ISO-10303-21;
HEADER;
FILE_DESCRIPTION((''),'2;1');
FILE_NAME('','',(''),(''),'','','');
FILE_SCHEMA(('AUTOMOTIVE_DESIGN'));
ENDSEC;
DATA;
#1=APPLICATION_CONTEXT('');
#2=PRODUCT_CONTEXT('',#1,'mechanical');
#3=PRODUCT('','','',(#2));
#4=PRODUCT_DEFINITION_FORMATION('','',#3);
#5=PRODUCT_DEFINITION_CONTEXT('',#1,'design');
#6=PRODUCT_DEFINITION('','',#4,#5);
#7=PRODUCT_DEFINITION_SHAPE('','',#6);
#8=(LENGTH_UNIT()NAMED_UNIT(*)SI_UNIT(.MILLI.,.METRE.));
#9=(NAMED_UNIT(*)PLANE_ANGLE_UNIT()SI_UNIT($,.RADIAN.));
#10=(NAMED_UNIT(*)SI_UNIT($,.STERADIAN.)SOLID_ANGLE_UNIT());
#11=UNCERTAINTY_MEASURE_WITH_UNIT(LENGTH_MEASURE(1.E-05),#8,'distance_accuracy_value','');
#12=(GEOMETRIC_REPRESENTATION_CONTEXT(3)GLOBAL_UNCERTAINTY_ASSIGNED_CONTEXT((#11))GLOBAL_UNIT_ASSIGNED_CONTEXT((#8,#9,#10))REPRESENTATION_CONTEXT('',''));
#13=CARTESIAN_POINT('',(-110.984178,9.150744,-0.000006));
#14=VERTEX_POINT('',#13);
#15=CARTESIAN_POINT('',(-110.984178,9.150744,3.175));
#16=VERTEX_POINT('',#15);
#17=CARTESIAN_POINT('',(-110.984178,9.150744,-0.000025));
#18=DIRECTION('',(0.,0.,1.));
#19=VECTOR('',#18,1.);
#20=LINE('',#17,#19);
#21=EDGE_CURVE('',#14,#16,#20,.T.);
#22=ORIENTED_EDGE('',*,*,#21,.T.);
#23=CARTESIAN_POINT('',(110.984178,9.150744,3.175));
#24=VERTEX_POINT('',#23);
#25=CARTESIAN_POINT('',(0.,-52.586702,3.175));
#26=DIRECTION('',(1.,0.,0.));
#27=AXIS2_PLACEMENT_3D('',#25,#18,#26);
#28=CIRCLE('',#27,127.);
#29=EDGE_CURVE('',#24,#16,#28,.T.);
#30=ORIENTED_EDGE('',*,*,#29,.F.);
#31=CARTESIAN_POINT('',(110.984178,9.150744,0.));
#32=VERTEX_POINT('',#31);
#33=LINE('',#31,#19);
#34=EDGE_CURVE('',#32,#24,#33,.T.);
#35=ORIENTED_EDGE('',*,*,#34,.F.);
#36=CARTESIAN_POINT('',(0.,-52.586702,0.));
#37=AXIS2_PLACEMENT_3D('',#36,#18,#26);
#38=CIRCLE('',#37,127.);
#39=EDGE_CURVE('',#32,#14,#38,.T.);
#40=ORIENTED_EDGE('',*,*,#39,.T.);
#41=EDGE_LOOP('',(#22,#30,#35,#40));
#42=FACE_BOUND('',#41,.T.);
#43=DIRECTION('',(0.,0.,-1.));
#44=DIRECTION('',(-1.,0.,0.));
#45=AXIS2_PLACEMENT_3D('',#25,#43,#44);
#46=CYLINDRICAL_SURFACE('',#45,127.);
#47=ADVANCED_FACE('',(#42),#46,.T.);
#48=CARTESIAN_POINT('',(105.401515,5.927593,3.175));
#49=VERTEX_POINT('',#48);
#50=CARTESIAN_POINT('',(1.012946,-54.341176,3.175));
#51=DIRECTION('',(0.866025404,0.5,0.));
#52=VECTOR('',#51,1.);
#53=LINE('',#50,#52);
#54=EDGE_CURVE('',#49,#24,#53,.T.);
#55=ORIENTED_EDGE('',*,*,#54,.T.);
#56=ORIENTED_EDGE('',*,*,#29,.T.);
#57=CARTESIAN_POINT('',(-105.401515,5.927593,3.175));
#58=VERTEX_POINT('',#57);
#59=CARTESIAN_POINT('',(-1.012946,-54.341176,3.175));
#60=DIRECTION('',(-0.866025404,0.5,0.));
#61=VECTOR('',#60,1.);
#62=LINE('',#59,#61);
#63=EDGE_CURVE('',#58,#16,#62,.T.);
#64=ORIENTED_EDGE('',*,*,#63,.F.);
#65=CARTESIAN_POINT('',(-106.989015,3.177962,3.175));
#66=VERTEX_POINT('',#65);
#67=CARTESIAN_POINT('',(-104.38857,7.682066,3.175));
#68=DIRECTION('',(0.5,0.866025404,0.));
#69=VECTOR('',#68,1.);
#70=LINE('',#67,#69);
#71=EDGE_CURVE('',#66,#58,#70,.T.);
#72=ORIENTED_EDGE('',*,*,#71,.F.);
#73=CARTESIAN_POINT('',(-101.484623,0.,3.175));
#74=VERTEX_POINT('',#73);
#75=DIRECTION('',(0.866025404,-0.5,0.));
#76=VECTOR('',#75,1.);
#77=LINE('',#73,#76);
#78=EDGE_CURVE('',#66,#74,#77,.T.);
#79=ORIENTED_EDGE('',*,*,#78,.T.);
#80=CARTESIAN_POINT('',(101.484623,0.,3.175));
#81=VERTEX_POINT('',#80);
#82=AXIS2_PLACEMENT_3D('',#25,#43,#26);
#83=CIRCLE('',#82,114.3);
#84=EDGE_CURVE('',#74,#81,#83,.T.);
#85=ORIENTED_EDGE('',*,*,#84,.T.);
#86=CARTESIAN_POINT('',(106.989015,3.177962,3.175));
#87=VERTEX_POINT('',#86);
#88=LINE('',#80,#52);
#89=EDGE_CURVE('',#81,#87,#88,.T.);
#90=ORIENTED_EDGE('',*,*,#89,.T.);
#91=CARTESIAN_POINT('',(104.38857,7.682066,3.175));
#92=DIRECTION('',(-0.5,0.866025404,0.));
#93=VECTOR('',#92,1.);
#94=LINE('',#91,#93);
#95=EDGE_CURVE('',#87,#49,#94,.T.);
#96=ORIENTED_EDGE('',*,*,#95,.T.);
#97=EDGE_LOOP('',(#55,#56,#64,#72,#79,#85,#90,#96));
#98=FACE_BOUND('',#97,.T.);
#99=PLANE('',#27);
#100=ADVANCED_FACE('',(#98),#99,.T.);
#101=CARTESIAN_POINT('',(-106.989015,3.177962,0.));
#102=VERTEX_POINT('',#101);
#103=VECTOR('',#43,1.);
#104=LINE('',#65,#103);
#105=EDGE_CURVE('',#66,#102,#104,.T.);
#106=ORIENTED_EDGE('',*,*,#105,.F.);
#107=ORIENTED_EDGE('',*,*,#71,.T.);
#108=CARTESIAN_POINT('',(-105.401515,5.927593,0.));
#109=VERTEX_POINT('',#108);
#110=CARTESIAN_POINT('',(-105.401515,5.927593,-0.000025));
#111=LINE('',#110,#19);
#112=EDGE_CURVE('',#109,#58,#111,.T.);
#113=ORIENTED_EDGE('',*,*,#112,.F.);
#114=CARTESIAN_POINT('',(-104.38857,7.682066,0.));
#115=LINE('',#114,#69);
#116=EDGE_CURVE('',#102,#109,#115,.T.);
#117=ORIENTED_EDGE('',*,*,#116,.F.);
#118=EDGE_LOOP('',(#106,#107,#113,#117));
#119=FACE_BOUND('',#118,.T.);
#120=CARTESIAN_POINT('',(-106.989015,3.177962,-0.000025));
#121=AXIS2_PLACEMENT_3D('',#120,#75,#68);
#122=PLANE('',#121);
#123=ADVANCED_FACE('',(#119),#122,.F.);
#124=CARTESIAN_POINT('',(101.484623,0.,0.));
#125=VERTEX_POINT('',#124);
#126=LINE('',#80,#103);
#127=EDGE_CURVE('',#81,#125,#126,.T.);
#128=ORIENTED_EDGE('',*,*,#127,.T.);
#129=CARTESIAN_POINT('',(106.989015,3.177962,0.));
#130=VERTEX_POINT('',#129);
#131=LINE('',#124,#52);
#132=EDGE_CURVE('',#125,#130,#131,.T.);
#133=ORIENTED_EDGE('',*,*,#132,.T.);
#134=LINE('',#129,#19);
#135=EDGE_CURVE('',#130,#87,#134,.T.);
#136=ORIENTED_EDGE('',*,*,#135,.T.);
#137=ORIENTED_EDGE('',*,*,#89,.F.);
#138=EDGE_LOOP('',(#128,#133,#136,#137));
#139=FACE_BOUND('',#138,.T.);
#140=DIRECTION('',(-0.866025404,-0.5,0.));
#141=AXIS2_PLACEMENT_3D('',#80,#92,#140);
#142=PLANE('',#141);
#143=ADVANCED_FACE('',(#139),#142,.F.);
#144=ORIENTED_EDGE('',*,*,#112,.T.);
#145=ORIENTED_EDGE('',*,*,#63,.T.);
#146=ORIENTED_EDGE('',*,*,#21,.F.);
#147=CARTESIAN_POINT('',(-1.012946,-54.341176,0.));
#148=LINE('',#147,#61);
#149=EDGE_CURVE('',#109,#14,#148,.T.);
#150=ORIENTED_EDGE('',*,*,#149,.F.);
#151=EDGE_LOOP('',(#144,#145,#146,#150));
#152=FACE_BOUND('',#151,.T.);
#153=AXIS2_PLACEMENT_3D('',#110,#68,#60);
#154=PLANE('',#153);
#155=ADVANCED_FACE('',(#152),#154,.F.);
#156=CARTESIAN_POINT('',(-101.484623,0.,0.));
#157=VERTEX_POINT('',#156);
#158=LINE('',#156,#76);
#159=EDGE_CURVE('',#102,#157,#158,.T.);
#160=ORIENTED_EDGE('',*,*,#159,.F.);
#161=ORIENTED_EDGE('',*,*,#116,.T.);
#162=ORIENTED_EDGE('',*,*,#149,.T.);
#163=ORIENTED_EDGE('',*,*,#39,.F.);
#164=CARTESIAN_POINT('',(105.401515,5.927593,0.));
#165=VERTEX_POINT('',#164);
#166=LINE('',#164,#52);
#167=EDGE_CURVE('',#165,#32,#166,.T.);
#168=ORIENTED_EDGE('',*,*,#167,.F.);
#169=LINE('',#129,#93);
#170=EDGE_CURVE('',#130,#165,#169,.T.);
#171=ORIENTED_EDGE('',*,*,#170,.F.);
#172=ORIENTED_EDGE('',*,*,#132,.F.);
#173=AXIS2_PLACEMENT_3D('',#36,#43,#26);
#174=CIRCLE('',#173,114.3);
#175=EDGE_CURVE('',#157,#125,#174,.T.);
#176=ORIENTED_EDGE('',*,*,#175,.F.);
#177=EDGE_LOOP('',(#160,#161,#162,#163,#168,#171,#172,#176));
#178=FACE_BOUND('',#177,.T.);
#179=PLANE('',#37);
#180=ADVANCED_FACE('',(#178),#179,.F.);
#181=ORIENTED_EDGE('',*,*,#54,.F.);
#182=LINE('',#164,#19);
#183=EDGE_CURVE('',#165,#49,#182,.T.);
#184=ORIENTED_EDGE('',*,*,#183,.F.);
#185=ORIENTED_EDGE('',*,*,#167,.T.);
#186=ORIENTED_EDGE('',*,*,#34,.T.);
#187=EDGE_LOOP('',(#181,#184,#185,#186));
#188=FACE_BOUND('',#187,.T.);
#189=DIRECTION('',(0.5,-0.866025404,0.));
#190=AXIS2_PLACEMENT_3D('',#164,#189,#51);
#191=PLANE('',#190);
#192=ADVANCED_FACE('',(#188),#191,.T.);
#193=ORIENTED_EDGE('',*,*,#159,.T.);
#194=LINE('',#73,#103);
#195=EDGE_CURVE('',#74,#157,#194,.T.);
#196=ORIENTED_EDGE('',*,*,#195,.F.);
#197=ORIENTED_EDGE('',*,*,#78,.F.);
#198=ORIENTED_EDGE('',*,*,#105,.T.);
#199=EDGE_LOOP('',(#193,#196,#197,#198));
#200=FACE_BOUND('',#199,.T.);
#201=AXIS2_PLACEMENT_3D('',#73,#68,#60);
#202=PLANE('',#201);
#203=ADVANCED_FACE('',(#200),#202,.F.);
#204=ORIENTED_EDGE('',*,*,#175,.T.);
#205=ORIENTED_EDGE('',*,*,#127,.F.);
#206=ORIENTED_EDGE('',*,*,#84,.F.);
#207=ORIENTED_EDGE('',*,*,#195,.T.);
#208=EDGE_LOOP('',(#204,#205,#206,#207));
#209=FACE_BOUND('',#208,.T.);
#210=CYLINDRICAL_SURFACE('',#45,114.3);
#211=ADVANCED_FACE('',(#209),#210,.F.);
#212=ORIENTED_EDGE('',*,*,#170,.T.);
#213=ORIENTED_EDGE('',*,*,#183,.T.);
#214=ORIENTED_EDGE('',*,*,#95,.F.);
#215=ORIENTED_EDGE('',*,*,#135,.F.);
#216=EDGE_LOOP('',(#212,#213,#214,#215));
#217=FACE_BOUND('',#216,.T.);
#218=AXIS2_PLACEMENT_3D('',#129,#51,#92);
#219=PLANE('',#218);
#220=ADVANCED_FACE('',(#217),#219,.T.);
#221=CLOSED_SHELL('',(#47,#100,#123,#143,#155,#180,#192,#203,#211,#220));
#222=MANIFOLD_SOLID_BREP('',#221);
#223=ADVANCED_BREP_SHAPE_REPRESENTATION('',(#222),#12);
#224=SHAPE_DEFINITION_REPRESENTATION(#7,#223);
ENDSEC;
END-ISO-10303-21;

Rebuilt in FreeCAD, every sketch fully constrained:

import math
import FreeCAD as App
import Part
import Sketcher
from FreeCAD import Vector
Q = App.Units.Quantity

doc = App.newDocument("Part")
body = doc.addObject("PartDesign::Body", "Body")

sketch1 = body.newObject("Sketcher::SketchObject", "Sketch")
sketch1.AttachmentSupport = (doc.getObject("XY_Plane"), [""])
sketch1.MapMode = "FlatFace"
sketch1.addGeometry([
    Part.LineSegment(Vector(-112.493408, 6.355925, 0), Vector(-101.484623, 0, 0)),
    Part.ArcOfCircle(Part.Circle(Vector(0, -52.586702, 0), Vector(0, 0, 1), 114.3), math.radians(27.392021), math.radians(152.607979)),
    Part.LineSegment(Vector(101.484623, 0, 0), Vector(112.493408, 6.355925, 0)),
    Part.ArcOfCircle(Part.Circle(Vector(0, -52.586702, 0), Vector(0, 0, 1), 127), math.radians(27.652973), math.radians(152.347027)),
], False)
sketch1.addConstraint([
    Sketcher.Constraint("Coincident", 0, 2, 1, 2),
    Sketcher.Constraint("Coincident", 1, 1, 2, 1),
    Sketcher.Constraint("Coincident", 2, 2, 3, 1),
    Sketcher.Constraint("Coincident", 3, 2, 0, 1),
    Sketcher.Constraint("Coincident", 3, 3, 1, 3),
    Sketcher.Constraint("PointOnObject", 1, 3, -2),
    Sketcher.Constraint("PointOnObject", 0, 2, -1),
    Sketcher.Constraint("PointOnObject", 1, 1, -1),
    Sketcher.Constraint("Radius", 3, Q("5 in")),
    Sketcher.Constraint("Radius", 1, Q("4.5 in")),
    Sketcher.Constraint("Distance", 0, Q("12.711849 mm")),
    Sketcher.Constraint("Distance", 2, Q("12.711849 mm")),
    Sketcher.Constraint("DistanceX", 0, 2, 2, 2, Q("213.978031 mm")),
])
pad1 = body.newObject("PartDesign::Pad", "Pad")
pad1.Profile = sketch1
pad1.Length = Q("0.125 in")

sketch2 = body.newObject("Sketcher::SketchObject", "Sketch001")
sketch2.AttachmentSupport = (doc.getObject("XY_Plane"), [""])
sketch2.MapMode = "FlatFace"
sketch2.AttachmentOffset = App.Placement(Vector(0, 0, 0.125 * 25.4), App.Rotation())
sketch2.addGeometry([
    Part.LineSegment(Vector(107, 3.2, 0), Vector(112.5, 6.4, 0)),
    Part.ArcOfCircle(Part.Circle(Vector(0, -52.6, 0), Vector(0, 0, 1), 127), math.radians(27.65), math.radians(29.09)),
    Part.LineSegment(Vector(111, 9.2, 0), Vector(105.4, 5.9, 0)),
    Part.LineSegment(Vector(105.4, 5.9, 0), Vector(107, 3.2, 0)),
], False)
sketch2.addConstraint([
    Sketcher.Constraint("Coincident", 0, 2, 1, 1),
    Sketcher.Constraint("Coincident", 1, 2, 2, 1),
    Sketcher.Constraint("Coincident", 2, 2, 3, 1),
    Sketcher.Constraint("Coincident", 3, 2, 0, 1),
    Sketcher.Constraint("Parallel", 0, 2),
    Sketcher.Constraint("Perpendicular", 2, 3),
    Sketcher.Constraint("Angle", 0, Q("30 deg")),
    Sketcher.Constraint("Distance", 3, Q("0.125 in")),
    Sketcher.Constraint("Radius", 1, Q("126.999994 mm")),
    Sketcher.Constraint("DistanceY", 1, 3, -1, 1, Q("52.5867 mm")),
    Sketcher.Constraint("DistanceY", 2, 2, 1, 2, Q("3.223152 mm")),
    Sketcher.Constraint("DistanceY", 2, 2, 0, 2, Q("0.428332 mm")),
    Sketcher.Constraint("DistanceX", -1, 1, 0, 2, Q("112.493408 mm")),
])
pocket1 = body.newObject("PartDesign::Pocket", "Pocket")
pocket1.Profile = sketch2
pocket1.Length = 271.830956
pocket1.Midplane = True
doc.recompute()

mirrored = body.newObject("PartDesign::Mirrored", "Mirrored")
mirrored.Originals = [pocket1]
mirrored.MirrorPlane = (doc.getObject("YZ_Plane"), [""])
body.Tip = mirrored

doc.recompute()
